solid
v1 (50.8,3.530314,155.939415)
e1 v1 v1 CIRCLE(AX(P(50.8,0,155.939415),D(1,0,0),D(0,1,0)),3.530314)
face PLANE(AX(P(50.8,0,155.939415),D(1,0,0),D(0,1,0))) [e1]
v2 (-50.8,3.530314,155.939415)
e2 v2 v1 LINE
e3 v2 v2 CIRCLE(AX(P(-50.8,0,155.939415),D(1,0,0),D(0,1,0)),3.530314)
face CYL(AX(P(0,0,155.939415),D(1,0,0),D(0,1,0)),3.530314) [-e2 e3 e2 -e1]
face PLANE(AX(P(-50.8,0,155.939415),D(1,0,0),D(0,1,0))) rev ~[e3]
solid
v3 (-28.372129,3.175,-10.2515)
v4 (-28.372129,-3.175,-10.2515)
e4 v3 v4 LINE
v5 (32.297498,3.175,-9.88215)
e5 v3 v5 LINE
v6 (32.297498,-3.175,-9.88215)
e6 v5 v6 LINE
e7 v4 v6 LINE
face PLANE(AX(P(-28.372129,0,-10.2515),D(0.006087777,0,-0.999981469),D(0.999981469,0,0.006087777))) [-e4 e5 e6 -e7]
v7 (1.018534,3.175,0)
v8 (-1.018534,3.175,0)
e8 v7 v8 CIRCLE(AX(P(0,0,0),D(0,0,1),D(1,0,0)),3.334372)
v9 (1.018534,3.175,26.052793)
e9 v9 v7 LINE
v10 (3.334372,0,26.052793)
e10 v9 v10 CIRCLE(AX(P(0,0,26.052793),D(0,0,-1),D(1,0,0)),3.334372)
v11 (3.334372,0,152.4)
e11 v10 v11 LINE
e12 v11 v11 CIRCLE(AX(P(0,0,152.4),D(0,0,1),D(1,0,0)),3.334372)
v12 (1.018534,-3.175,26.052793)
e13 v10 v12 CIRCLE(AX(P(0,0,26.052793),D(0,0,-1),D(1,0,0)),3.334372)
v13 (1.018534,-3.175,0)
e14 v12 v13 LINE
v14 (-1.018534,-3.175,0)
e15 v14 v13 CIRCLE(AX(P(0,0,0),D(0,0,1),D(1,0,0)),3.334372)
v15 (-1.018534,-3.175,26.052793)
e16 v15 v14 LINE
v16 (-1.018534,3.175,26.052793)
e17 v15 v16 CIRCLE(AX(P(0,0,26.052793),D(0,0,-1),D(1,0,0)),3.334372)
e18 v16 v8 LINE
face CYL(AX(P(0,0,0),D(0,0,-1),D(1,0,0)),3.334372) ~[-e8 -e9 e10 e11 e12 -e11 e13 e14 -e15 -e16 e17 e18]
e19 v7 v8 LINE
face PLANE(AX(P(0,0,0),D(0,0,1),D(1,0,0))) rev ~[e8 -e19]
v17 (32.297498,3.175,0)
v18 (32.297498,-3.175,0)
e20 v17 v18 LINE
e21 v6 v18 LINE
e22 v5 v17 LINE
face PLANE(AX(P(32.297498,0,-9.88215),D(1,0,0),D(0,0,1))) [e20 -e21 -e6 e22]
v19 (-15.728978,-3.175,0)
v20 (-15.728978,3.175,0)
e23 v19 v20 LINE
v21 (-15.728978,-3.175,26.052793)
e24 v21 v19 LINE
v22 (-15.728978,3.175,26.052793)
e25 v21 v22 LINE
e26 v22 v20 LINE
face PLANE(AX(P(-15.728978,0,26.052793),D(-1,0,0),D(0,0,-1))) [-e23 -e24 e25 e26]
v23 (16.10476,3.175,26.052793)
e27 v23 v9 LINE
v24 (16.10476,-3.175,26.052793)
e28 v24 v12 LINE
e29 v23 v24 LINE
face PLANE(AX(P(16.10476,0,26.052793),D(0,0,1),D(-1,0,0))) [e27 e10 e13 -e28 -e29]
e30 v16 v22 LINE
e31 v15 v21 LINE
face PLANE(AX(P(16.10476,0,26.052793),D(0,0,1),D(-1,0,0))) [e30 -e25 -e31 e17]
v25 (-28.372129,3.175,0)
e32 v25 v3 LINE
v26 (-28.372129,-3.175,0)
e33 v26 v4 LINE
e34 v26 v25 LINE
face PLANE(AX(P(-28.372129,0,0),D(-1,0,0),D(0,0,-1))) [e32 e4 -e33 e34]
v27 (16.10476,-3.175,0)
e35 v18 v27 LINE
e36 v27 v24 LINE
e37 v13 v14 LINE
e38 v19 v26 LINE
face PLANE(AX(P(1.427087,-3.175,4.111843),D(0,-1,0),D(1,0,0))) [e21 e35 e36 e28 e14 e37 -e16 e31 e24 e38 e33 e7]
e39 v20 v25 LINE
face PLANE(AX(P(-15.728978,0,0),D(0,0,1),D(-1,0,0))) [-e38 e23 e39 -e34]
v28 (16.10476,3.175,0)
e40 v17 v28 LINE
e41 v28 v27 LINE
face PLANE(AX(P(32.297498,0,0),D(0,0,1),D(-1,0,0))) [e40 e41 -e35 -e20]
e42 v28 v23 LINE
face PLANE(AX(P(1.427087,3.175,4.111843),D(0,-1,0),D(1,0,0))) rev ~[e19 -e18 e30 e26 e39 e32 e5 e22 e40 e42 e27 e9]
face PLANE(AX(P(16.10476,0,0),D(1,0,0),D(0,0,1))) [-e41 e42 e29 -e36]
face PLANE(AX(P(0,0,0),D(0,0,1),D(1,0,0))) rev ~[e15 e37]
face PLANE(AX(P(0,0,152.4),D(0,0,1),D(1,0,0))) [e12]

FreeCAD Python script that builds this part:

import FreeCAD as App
import Part
import Sketcher

V = App.Vector
Q = App.Units.Quantity

doc = App.newDocument("Part")
body = doc.addObject("PartDesign::Body", "Body")

sketch1 = body.newObject("Sketcher::SketchObject", "Sketch")
sketch1.AttachmentSupport = (doc.getObject("XZ_Plane"), [""])
sketch1.MapMode = "FlatFace"
sketch1.addGeometry(Part.LineSegment(V(-28.372129, 0, 0), V(-28.372129, -10.2515, 0)), False)
sketch1.addGeometry(Part.LineSegment(V(-28.372129, -10.2515, 0), V(32.297498, -9.88215, 0)), False)
sketch1.addGeometry(Part.LineSegment(V(32.297498, -9.88215, 0), V(32.297498, 0, 0)), False)
sketch1.addGeometry(Part.LineSegment(V(32.297498, 0, 0), V(16.10476, 0, 0)), False)
sketch1.addGeometry(Part.LineSegment(V(16.10476, 0, 0), V(16.10476, 26.052793, 0)), False)
sketch1.addGeometry(Part.LineSegment(V(16.10476, 26.052793, 0), V(-15.728978, 26.052793, 0)), False)
sketch1.addGeometry(Part.LineSegment(V(-15.728978, 26.052793, 0), V(-15.728978, 0, 0)), False)
sketch1.addGeometry(Part.LineSegment(V(-15.728978, 0, 0), V(-28.372129, 0, 0)), False)
sketch1.addConstraint(Sketcher.Constraint("Coincident", 0, 2, 1, 1))
sketch1.addConstraint(Sketcher.Constraint("Coincident", 1, 2, 2, 1))
sketch1.addConstraint(Sketcher.Constraint("Coincident", 2, 2, 3, 1))
sketch1.addConstraint(Sketcher.Constraint("Coincident", 3, 2, 4, 1))
sketch1.addConstraint(Sketcher.Constraint("Coincident", 4, 2, 5, 1))
sketch1.addConstraint(Sketcher.Constraint("Coincident", 5, 2, 6, 1))
sketch1.addConstraint(Sketcher.Constraint("Coincident", 6, 2, 7, 1))
sketch1.addConstraint(Sketcher.Constraint("Coincident", 7, 2, 0, 1))
sketch1.addConstraint(Sketcher.Constraint("Vertical", 0))
sketch1.addConstraint(Sketcher.Constraint("Vertical", 2))
sketch1.addConstraint(Sketcher.Constraint("Horizontal", 3))
sketch1.addConstraint(Sketcher.Constraint("Vertical", 4))
sketch1.addConstraint(Sketcher.Constraint("Horizontal", 5))
sketch1.addConstraint(Sketcher.Constraint("Vertical", 6))
sketch1.addConstraint(Sketcher.Constraint("Horizontal", 7))
sketch1.addConstraint(Sketcher.Constraint("PointOnObject", 2, 2, -1))
sketch1.addConstraint(Sketcher.Constraint("PointOnObject", 6, 2, -1))
sketch1.addConstraint(Sketcher.Constraint("DistanceY", 0, 2, 0, 1, Q("10.2515 mm")))
sketch1.addConstraint(Sketcher.Constraint("DistanceX", 7, 2, 7, 1, Q("12.643151 mm")))
sketch1.addConstraint(Sketcher.Constraint("DistanceY", 2, 1, 2, 2, Q("9.88215 mm")))
sketch1.addConstraint(Sketcher.Constraint("Distance", 1, Q("60.670751 mm")))
sketch1.addConstraint(Sketcher.Constraint("DistanceX", 3, 2, 3, 1, Q("16.192738 mm")))
sketch1.addConstraint(Sketcher.Constraint("DistanceY", 4, 1, 4, 2, Q("26.052793 mm")))
sketch1.addConstraint(Sketcher.Constraint("DistanceX", 0, 2, -1, 1, Q("28.372129 mm")))
pad1 = body.newObject("PartDesign::Pad", "Pad")
pad1.Profile = sketch1
pad1.Length = Q("0.25 in")
pad1.Midplane = True

sketch2 = body.newObject("Sketcher::SketchObject", "Sketch001")
sketch2.AttachmentSupport = (doc.getObject("XY_Plane"), [""])
sketch2.MapMode = "FlatFace"
sketch2.addGeometry(Part.Circle(V(0, 0, 0), V(0, 0, 1), 3.334372), False)
sketch2.addConstraint(Sketcher.Constraint("Coincident", 0, 3, -1, 1))
sketch2.addConstraint(Sketcher.Constraint("Diameter", 0, Q("6.668744 mm")))
pad2 = body.newObject("PartDesign::Pad", "Pad001")
pad2.Profile = sketch2
pad2.Length = Q("6 in")
body2 = doc.addObject("PartDesign::Body", "Body001")

sketch3 = body2.newObject("Sketcher::SketchObject", "Sketch002")
sketch3.AttachmentSupport = (doc.getObject("YZ_Plane001"), [""])
sketch3.MapMode = "FlatFace"
sketch3.addGeometry(Part.Circle(V(0, 155.939415, 0), V(0, 0, 1), 3.530314), False)
sketch3.addConstraint(Sketcher.Constraint("PointOnObject", 0, 3, -2))
sketch3.addConstraint(Sketcher.Constraint("Diameter", 0, Q("7.060628 mm")))
sketch3.addConstraint(Sketcher.Constraint("DistanceY", -1, 1, 0, 3, Q("155.939415 mm")))
pad3 = body2.newObject("PartDesign::Pad", "Pad002")
pad3.Profile = sketch3
pad3.Length = Q("4 in")
pad3.Midplane = True

doc.recompute()
